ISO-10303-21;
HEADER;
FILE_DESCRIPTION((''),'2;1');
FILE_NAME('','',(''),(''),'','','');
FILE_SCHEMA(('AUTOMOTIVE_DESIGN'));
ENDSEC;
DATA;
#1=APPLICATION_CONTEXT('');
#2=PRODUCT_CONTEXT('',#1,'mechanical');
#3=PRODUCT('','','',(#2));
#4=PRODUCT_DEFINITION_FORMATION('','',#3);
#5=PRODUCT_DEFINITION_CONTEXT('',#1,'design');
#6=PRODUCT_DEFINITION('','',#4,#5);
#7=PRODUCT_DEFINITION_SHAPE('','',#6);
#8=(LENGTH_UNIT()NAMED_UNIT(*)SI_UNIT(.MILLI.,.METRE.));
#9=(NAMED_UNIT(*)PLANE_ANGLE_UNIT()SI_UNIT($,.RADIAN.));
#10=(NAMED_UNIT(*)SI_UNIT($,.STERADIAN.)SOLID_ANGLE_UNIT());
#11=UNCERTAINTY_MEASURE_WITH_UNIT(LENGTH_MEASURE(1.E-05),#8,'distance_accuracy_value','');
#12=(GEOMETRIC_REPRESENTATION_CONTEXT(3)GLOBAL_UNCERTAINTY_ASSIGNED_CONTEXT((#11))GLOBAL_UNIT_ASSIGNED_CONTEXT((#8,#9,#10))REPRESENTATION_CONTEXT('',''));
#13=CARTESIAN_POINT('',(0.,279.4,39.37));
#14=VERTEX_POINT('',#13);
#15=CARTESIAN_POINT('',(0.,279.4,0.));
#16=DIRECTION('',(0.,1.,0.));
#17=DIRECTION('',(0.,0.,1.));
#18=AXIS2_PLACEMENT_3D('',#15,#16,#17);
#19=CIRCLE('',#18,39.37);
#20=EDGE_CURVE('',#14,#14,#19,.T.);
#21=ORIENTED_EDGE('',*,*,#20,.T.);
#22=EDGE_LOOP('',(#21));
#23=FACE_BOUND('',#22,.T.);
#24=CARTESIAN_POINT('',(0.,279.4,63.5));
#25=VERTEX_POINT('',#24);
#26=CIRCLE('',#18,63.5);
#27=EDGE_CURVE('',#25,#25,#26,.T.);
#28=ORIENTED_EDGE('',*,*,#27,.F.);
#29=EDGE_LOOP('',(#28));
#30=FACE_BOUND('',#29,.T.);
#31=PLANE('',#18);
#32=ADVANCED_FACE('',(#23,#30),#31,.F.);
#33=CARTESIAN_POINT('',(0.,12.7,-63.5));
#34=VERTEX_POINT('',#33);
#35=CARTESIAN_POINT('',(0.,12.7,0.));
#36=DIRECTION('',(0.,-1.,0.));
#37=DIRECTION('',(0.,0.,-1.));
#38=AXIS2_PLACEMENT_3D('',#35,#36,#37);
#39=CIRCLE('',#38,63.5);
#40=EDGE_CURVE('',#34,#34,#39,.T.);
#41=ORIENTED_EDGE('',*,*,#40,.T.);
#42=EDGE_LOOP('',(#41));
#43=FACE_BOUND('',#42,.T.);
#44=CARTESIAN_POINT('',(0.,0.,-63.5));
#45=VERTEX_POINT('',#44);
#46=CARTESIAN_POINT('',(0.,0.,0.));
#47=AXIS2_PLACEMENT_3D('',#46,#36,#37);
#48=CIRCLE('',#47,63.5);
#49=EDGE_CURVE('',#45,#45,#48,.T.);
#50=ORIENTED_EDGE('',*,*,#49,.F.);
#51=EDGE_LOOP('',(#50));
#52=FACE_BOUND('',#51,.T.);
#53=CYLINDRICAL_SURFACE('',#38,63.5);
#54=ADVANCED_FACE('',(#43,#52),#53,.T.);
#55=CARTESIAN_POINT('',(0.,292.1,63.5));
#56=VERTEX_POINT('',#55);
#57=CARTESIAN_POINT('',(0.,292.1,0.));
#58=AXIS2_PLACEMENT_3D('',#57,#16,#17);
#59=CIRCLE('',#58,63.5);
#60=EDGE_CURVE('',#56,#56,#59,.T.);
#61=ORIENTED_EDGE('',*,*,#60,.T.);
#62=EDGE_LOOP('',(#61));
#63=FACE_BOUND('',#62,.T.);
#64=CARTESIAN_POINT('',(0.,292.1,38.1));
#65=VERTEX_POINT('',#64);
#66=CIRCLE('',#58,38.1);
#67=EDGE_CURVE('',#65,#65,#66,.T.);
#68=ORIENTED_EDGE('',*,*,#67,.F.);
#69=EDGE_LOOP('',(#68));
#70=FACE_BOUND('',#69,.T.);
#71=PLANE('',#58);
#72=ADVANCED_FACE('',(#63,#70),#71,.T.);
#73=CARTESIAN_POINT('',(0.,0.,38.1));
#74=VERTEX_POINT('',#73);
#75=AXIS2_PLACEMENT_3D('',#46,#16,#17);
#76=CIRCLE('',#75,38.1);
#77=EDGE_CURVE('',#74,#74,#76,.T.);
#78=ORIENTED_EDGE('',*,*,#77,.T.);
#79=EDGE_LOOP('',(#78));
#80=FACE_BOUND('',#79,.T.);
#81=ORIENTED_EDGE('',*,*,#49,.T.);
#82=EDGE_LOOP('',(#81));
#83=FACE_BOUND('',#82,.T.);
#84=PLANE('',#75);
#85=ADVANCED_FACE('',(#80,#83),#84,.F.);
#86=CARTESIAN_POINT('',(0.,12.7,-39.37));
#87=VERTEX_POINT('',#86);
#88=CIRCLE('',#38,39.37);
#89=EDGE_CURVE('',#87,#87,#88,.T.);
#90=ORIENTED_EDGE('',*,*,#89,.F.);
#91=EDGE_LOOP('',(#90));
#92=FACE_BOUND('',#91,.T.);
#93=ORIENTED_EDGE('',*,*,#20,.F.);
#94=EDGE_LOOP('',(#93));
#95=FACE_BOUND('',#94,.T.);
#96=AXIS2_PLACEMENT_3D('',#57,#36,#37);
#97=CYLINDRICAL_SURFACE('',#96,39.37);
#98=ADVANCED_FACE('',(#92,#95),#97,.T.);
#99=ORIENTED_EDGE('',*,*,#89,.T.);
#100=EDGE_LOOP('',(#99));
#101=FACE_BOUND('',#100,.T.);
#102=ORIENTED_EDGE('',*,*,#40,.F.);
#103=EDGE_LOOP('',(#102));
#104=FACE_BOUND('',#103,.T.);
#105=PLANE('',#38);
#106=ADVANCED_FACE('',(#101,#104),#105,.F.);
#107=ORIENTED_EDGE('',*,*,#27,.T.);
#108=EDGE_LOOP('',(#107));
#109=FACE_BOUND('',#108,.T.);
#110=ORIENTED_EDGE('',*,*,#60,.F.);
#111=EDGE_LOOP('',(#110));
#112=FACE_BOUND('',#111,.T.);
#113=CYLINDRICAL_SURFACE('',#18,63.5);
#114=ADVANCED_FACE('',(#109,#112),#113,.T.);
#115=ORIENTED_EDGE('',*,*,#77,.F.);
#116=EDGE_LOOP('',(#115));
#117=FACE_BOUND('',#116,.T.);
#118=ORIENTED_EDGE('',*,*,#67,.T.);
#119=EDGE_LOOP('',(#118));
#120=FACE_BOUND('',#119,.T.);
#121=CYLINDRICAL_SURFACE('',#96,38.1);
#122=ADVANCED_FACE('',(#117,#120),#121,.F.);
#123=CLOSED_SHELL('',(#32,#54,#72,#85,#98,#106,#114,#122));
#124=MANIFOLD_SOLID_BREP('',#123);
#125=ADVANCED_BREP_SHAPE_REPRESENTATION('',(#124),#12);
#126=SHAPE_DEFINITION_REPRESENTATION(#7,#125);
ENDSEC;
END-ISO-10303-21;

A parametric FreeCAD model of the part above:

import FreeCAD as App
import Part
import Sketcher
Q = App.Units.Quantity

doc = App.newDocument("Part")
body = doc.addObject("PartDesign::Body", "Body")

sketch1 = body.newObject("Sketcher::SketchObject", "Sketch")
sketch1.AttachmentSupport = (doc.getObject("XZ_Plane"), [""])
sketch1.MapMode = "FlatFace"
sketch1.addGeometry(Part.Circle(App.Vector(0, 0, 0), App.Vector(0, 0, 1), 39), False)
sketch1.addGeometry(Part.Circle(App.Vector(0, 0, 0), App.Vector(0, 0, 1), 38), False)
sketch1.addConstraint(Sketcher.Constraint("Coincident", 0, 3, -1, 1))
sketch1.addConstraint(Sketcher.Constraint("Coincident", 1, 3, -1, 1))
sketch1.addConstraint(Sketcher.Constraint("Diameter", 1, Q("3 in")))
sketch1.addConstraint(Sketcher.Constraint("Diameter", 0, Q("3.1 in")))
pad1 = body.newObject("PartDesign::Pad", "Pad")
pad1.Profile = sketch1
pad1.Length = Q("11.5 in")
pad1.Reversed = True

sketch2 = body.newObject("Sketcher::SketchObject", "Sketch001")
sketch2.AttachmentSupport = (doc.getObject("XZ_Plane"), [""])
sketch2.MapMode = "FlatFace"
sketch2.addGeometry(Part.Circle(App.Vector(0, 0, 0), App.Vector(0, 0, 1), 64), False)
sketch2.addGeometry(Part.Circle(App.Vector(0, 0, 0), App.Vector(0, 0, 1), 38), False)
sketch2.addConstraint(Sketcher.Constraint("Coincident", 0, 3, -1, 1))
sketch2.addConstraint(Sketcher.Constraint("Coincident", 1, 3, -1, 1))
sketch2.addConstraint(Sketcher.Constraint("Diameter", 0, Q("5 in")))
sketch2.addConstraint(Sketcher.Constraint("Diameter", 1, Q("3 in")))
pad2 = body.newObject("PartDesign::Pad", "Pad001")
pad2.Profile = sketch2
pad2.Length = Q("0.5 in")
pad2.Reversed = True

sketch3 = body.newObject("Sketcher::SketchObject", "Sketch002")
sketch3.AttachmentSupport = (doc.getObject("XZ_Plane"), [""])
sketch3.MapMode = "FlatFace"
sketch3.AttachmentOffset = App.Placement(App.Vector(0, 0, -11.5 * 25.4), App.Rotation())
sketch3.addGeometry(Part.Circle(App.Vector(0, 0, 0), App.Vector(0, 0, 1), 64), False)
sketch3.addGeometry(Part.Circle(App.Vector(0, 0, 0), App.Vector(0, 0, 1), 38), False)
sketch3.addConstraint(Sketcher.Constraint("Coincident", 0, 3, -1, 1))
sketch3.addConstraint(Sketcher.Constraint("Coincident", 1, 3, -1, 1))
sketch3.addConstraint(Sketcher.Constraint("Diameter", 0, Q("5 in")))
sketch3.addConstraint(Sketcher.Constraint("Diameter", 1, Q("3 in")))
pad3 = body.newObject("PartDesign::Pad", "Pad002")
pad3.Profile = sketch3
pad3.Length = Q("0.5 in")

doc.recompute()
